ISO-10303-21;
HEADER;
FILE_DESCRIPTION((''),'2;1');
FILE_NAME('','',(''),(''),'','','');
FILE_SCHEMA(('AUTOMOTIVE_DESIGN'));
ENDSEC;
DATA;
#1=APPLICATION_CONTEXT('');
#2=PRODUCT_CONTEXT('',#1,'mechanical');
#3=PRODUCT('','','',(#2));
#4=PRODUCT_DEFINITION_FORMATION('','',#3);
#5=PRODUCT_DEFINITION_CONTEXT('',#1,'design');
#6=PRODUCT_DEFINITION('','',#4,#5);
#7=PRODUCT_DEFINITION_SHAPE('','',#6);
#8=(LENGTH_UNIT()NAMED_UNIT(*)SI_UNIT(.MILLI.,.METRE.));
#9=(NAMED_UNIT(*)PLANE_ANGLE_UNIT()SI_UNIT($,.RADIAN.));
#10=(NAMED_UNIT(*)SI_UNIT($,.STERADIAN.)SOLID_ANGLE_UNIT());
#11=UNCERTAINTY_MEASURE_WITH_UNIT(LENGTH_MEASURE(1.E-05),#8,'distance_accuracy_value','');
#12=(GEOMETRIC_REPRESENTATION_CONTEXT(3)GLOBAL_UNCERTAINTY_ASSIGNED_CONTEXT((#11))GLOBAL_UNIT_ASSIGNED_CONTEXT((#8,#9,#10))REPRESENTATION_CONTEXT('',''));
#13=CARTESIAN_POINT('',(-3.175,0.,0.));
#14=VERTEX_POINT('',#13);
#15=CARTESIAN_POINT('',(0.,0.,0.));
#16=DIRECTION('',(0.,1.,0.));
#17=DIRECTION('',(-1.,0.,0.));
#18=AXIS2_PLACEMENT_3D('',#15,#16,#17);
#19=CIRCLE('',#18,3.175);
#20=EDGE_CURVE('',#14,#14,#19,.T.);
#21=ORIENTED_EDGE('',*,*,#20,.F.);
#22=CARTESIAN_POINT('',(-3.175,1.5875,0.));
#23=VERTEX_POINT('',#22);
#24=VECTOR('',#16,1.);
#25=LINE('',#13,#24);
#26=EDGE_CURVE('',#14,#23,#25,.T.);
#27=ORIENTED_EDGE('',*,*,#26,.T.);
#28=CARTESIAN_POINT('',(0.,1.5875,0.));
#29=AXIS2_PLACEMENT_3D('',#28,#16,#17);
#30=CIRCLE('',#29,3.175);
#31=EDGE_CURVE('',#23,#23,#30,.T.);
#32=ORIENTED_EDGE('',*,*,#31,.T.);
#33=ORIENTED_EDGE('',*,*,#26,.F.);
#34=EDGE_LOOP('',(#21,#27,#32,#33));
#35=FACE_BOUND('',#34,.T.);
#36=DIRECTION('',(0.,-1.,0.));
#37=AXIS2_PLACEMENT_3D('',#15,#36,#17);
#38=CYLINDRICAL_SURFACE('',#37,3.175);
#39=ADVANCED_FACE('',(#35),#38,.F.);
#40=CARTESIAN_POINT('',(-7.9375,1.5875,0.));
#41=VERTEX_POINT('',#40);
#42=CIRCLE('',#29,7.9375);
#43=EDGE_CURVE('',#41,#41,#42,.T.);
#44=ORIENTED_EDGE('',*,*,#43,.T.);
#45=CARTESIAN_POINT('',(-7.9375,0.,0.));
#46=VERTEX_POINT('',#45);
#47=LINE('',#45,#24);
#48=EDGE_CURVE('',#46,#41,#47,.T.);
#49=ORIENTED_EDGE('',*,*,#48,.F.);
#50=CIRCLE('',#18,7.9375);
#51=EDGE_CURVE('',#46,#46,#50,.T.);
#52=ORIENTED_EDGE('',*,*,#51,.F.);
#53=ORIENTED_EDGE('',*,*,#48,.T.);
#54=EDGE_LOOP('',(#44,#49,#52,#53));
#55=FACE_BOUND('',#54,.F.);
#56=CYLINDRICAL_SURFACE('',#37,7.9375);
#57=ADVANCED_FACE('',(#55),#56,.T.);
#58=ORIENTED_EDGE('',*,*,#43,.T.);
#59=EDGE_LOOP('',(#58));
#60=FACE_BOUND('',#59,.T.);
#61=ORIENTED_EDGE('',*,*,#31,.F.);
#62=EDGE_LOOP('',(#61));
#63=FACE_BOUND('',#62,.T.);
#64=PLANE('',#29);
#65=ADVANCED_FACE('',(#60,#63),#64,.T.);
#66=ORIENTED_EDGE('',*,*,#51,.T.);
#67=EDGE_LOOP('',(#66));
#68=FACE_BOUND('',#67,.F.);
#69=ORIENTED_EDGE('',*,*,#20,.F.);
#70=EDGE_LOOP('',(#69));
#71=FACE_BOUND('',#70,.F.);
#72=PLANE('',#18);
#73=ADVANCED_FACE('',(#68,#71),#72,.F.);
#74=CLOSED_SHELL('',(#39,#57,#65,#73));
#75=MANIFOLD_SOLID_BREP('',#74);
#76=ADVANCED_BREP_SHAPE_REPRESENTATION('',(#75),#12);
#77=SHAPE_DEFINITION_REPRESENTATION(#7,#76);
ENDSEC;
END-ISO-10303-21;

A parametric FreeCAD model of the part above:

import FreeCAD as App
import Part
import Sketcher

V = App.Vector
Q = App.Units.Quantity

doc = App.newDocument("Part")
params = doc.addObject("Spreadsheet::Sheet", "Params")
for row, (alias, value) in enumerate([
    ("sketch1_diameter", "0.25 in"),
    ("sketch1_diameter2", "0.625 in"),
    ("pad1_length", "0.0625 in"),
], start=1):
    params.set(f"A{row}", alias)
    params.set(f"B{row}", "=" + value)
    params.setAlias(f"B{row}", alias)

body = doc.addObject("PartDesign::Body", "Body")

# Sketch on XZ plane
sketch1 = body.newObject("Sketcher::SketchObject", "Sketch")
sketch1.AttachmentSupport = (doc.getObject("XZ_Plane"), [""])
sketch1.MapMode = "FlatFace"
sketch1.addGeometry(Part.Circle(V(0, 0, 0), V(0, 0, 1), 7.9), False)
sketch1.addGeometry(Part.Circle(V(0, 0, 0), V(0, 0, 1), 3.2), False)
sketch1.addConstraint(Sketcher.Constraint("Coincident", 0, 3, -1, 1))
sketch1.addConstraint(Sketcher.Constraint("Coincident", 1, 3, -1, 1))
sketch1.addConstraint(Sketcher.Constraint("Diameter", 1, Q("0.25 in")))
sketch1.addConstraint(Sketcher.Constraint("Diameter", 0, Q("0.625 in")))
sketch1.setExpression("Constraints[2]", "Params.sketch1_diameter")
sketch1.setExpression("Constraints[3]", "Params.sketch1_diameter2")
pad1 = body.newObject("PartDesign::Pad", "Pad")
pad1.Profile = sketch1
pad1.setExpression("Length", "Params.pad1_length")
pad1.Reversed = True

doc.recompute()
